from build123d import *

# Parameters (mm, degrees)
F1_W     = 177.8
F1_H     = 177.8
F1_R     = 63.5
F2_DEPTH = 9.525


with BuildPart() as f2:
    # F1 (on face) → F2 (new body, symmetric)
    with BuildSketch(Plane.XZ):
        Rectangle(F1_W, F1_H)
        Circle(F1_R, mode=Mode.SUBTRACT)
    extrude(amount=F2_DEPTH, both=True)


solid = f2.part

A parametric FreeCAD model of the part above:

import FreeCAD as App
import Part
import Sketcher
Q = App.Units.Quantity

doc = App.newDocument("Part")
body = doc.addObject("PartDesign::Body", "Body")

# Sketch on XZ plane
sketch1 = body.newObject("Sketcher::SketchObject", "Sketch")
sketch1.AttachmentSupport = (doc.getObject("XZ_Plane"), [""])
sketch1.MapMode = "FlatFace"
sketch1.addGeometry([
    Part.LineSegment(App.Vector(-88.9, 88.9, 0), App.Vector(-88.9, -88.9, 0)),  # 0
    Part.LineSegment(App.Vector(-88.9, -88.9, 0), App.Vector(88.9, -88.9, 0)),  # 1
    Part.LineSegment(App.Vector(88.9, -88.9, 0), App.Vector(88.9, 88.9, 0)),  # 2
    Part.LineSegment(App.Vector(88.9, 88.9, 0), App.Vector(-88.9, 88.9, 0)),  # 3
    Part.Circle(App.Vector(0, 0, 0), App.Vector(0, 0, 1), 63.5),  # 4
], False)
sketch1.addConstraint([
    Sketcher.Constraint("Coincident", 0, 2, 1, 1),
    Sketcher.Constraint("Coincident", 1, 2, 2, 1),
    Sketcher.Constraint("Coincident", 2, 2, 3, 1),
    Sketcher.Constraint("Coincident", 3, 2, 0, 1),
    Sketcher.Constraint("Vertical", 0),
    Sketcher.Constraint("Horizontal", 1),
    Sketcher.Constraint("Vertical", 2),
    Sketcher.Constraint("Horizontal", 3),
    Sketcher.Constraint("Coincident", 4, 3, -1, 1),
    Sketcher.Constraint("Symmetric", 0, 2, 2, 2, -1, 1),
    Sketcher.Constraint("Equal", 3, 0),
    Sketcher.Constraint("Diameter", 4, Q("5 in")),
    Sketcher.Constraint("DistanceX", 1, 1, 1, 2, Q("7 in")),
])
pad1 = body.newObject("PartDesign::Pad", "Pad")
pad1.Profile = sketch1
pad1.Length = Q("0.75 in")
pad1.Midplane = True

doc.recompute()
